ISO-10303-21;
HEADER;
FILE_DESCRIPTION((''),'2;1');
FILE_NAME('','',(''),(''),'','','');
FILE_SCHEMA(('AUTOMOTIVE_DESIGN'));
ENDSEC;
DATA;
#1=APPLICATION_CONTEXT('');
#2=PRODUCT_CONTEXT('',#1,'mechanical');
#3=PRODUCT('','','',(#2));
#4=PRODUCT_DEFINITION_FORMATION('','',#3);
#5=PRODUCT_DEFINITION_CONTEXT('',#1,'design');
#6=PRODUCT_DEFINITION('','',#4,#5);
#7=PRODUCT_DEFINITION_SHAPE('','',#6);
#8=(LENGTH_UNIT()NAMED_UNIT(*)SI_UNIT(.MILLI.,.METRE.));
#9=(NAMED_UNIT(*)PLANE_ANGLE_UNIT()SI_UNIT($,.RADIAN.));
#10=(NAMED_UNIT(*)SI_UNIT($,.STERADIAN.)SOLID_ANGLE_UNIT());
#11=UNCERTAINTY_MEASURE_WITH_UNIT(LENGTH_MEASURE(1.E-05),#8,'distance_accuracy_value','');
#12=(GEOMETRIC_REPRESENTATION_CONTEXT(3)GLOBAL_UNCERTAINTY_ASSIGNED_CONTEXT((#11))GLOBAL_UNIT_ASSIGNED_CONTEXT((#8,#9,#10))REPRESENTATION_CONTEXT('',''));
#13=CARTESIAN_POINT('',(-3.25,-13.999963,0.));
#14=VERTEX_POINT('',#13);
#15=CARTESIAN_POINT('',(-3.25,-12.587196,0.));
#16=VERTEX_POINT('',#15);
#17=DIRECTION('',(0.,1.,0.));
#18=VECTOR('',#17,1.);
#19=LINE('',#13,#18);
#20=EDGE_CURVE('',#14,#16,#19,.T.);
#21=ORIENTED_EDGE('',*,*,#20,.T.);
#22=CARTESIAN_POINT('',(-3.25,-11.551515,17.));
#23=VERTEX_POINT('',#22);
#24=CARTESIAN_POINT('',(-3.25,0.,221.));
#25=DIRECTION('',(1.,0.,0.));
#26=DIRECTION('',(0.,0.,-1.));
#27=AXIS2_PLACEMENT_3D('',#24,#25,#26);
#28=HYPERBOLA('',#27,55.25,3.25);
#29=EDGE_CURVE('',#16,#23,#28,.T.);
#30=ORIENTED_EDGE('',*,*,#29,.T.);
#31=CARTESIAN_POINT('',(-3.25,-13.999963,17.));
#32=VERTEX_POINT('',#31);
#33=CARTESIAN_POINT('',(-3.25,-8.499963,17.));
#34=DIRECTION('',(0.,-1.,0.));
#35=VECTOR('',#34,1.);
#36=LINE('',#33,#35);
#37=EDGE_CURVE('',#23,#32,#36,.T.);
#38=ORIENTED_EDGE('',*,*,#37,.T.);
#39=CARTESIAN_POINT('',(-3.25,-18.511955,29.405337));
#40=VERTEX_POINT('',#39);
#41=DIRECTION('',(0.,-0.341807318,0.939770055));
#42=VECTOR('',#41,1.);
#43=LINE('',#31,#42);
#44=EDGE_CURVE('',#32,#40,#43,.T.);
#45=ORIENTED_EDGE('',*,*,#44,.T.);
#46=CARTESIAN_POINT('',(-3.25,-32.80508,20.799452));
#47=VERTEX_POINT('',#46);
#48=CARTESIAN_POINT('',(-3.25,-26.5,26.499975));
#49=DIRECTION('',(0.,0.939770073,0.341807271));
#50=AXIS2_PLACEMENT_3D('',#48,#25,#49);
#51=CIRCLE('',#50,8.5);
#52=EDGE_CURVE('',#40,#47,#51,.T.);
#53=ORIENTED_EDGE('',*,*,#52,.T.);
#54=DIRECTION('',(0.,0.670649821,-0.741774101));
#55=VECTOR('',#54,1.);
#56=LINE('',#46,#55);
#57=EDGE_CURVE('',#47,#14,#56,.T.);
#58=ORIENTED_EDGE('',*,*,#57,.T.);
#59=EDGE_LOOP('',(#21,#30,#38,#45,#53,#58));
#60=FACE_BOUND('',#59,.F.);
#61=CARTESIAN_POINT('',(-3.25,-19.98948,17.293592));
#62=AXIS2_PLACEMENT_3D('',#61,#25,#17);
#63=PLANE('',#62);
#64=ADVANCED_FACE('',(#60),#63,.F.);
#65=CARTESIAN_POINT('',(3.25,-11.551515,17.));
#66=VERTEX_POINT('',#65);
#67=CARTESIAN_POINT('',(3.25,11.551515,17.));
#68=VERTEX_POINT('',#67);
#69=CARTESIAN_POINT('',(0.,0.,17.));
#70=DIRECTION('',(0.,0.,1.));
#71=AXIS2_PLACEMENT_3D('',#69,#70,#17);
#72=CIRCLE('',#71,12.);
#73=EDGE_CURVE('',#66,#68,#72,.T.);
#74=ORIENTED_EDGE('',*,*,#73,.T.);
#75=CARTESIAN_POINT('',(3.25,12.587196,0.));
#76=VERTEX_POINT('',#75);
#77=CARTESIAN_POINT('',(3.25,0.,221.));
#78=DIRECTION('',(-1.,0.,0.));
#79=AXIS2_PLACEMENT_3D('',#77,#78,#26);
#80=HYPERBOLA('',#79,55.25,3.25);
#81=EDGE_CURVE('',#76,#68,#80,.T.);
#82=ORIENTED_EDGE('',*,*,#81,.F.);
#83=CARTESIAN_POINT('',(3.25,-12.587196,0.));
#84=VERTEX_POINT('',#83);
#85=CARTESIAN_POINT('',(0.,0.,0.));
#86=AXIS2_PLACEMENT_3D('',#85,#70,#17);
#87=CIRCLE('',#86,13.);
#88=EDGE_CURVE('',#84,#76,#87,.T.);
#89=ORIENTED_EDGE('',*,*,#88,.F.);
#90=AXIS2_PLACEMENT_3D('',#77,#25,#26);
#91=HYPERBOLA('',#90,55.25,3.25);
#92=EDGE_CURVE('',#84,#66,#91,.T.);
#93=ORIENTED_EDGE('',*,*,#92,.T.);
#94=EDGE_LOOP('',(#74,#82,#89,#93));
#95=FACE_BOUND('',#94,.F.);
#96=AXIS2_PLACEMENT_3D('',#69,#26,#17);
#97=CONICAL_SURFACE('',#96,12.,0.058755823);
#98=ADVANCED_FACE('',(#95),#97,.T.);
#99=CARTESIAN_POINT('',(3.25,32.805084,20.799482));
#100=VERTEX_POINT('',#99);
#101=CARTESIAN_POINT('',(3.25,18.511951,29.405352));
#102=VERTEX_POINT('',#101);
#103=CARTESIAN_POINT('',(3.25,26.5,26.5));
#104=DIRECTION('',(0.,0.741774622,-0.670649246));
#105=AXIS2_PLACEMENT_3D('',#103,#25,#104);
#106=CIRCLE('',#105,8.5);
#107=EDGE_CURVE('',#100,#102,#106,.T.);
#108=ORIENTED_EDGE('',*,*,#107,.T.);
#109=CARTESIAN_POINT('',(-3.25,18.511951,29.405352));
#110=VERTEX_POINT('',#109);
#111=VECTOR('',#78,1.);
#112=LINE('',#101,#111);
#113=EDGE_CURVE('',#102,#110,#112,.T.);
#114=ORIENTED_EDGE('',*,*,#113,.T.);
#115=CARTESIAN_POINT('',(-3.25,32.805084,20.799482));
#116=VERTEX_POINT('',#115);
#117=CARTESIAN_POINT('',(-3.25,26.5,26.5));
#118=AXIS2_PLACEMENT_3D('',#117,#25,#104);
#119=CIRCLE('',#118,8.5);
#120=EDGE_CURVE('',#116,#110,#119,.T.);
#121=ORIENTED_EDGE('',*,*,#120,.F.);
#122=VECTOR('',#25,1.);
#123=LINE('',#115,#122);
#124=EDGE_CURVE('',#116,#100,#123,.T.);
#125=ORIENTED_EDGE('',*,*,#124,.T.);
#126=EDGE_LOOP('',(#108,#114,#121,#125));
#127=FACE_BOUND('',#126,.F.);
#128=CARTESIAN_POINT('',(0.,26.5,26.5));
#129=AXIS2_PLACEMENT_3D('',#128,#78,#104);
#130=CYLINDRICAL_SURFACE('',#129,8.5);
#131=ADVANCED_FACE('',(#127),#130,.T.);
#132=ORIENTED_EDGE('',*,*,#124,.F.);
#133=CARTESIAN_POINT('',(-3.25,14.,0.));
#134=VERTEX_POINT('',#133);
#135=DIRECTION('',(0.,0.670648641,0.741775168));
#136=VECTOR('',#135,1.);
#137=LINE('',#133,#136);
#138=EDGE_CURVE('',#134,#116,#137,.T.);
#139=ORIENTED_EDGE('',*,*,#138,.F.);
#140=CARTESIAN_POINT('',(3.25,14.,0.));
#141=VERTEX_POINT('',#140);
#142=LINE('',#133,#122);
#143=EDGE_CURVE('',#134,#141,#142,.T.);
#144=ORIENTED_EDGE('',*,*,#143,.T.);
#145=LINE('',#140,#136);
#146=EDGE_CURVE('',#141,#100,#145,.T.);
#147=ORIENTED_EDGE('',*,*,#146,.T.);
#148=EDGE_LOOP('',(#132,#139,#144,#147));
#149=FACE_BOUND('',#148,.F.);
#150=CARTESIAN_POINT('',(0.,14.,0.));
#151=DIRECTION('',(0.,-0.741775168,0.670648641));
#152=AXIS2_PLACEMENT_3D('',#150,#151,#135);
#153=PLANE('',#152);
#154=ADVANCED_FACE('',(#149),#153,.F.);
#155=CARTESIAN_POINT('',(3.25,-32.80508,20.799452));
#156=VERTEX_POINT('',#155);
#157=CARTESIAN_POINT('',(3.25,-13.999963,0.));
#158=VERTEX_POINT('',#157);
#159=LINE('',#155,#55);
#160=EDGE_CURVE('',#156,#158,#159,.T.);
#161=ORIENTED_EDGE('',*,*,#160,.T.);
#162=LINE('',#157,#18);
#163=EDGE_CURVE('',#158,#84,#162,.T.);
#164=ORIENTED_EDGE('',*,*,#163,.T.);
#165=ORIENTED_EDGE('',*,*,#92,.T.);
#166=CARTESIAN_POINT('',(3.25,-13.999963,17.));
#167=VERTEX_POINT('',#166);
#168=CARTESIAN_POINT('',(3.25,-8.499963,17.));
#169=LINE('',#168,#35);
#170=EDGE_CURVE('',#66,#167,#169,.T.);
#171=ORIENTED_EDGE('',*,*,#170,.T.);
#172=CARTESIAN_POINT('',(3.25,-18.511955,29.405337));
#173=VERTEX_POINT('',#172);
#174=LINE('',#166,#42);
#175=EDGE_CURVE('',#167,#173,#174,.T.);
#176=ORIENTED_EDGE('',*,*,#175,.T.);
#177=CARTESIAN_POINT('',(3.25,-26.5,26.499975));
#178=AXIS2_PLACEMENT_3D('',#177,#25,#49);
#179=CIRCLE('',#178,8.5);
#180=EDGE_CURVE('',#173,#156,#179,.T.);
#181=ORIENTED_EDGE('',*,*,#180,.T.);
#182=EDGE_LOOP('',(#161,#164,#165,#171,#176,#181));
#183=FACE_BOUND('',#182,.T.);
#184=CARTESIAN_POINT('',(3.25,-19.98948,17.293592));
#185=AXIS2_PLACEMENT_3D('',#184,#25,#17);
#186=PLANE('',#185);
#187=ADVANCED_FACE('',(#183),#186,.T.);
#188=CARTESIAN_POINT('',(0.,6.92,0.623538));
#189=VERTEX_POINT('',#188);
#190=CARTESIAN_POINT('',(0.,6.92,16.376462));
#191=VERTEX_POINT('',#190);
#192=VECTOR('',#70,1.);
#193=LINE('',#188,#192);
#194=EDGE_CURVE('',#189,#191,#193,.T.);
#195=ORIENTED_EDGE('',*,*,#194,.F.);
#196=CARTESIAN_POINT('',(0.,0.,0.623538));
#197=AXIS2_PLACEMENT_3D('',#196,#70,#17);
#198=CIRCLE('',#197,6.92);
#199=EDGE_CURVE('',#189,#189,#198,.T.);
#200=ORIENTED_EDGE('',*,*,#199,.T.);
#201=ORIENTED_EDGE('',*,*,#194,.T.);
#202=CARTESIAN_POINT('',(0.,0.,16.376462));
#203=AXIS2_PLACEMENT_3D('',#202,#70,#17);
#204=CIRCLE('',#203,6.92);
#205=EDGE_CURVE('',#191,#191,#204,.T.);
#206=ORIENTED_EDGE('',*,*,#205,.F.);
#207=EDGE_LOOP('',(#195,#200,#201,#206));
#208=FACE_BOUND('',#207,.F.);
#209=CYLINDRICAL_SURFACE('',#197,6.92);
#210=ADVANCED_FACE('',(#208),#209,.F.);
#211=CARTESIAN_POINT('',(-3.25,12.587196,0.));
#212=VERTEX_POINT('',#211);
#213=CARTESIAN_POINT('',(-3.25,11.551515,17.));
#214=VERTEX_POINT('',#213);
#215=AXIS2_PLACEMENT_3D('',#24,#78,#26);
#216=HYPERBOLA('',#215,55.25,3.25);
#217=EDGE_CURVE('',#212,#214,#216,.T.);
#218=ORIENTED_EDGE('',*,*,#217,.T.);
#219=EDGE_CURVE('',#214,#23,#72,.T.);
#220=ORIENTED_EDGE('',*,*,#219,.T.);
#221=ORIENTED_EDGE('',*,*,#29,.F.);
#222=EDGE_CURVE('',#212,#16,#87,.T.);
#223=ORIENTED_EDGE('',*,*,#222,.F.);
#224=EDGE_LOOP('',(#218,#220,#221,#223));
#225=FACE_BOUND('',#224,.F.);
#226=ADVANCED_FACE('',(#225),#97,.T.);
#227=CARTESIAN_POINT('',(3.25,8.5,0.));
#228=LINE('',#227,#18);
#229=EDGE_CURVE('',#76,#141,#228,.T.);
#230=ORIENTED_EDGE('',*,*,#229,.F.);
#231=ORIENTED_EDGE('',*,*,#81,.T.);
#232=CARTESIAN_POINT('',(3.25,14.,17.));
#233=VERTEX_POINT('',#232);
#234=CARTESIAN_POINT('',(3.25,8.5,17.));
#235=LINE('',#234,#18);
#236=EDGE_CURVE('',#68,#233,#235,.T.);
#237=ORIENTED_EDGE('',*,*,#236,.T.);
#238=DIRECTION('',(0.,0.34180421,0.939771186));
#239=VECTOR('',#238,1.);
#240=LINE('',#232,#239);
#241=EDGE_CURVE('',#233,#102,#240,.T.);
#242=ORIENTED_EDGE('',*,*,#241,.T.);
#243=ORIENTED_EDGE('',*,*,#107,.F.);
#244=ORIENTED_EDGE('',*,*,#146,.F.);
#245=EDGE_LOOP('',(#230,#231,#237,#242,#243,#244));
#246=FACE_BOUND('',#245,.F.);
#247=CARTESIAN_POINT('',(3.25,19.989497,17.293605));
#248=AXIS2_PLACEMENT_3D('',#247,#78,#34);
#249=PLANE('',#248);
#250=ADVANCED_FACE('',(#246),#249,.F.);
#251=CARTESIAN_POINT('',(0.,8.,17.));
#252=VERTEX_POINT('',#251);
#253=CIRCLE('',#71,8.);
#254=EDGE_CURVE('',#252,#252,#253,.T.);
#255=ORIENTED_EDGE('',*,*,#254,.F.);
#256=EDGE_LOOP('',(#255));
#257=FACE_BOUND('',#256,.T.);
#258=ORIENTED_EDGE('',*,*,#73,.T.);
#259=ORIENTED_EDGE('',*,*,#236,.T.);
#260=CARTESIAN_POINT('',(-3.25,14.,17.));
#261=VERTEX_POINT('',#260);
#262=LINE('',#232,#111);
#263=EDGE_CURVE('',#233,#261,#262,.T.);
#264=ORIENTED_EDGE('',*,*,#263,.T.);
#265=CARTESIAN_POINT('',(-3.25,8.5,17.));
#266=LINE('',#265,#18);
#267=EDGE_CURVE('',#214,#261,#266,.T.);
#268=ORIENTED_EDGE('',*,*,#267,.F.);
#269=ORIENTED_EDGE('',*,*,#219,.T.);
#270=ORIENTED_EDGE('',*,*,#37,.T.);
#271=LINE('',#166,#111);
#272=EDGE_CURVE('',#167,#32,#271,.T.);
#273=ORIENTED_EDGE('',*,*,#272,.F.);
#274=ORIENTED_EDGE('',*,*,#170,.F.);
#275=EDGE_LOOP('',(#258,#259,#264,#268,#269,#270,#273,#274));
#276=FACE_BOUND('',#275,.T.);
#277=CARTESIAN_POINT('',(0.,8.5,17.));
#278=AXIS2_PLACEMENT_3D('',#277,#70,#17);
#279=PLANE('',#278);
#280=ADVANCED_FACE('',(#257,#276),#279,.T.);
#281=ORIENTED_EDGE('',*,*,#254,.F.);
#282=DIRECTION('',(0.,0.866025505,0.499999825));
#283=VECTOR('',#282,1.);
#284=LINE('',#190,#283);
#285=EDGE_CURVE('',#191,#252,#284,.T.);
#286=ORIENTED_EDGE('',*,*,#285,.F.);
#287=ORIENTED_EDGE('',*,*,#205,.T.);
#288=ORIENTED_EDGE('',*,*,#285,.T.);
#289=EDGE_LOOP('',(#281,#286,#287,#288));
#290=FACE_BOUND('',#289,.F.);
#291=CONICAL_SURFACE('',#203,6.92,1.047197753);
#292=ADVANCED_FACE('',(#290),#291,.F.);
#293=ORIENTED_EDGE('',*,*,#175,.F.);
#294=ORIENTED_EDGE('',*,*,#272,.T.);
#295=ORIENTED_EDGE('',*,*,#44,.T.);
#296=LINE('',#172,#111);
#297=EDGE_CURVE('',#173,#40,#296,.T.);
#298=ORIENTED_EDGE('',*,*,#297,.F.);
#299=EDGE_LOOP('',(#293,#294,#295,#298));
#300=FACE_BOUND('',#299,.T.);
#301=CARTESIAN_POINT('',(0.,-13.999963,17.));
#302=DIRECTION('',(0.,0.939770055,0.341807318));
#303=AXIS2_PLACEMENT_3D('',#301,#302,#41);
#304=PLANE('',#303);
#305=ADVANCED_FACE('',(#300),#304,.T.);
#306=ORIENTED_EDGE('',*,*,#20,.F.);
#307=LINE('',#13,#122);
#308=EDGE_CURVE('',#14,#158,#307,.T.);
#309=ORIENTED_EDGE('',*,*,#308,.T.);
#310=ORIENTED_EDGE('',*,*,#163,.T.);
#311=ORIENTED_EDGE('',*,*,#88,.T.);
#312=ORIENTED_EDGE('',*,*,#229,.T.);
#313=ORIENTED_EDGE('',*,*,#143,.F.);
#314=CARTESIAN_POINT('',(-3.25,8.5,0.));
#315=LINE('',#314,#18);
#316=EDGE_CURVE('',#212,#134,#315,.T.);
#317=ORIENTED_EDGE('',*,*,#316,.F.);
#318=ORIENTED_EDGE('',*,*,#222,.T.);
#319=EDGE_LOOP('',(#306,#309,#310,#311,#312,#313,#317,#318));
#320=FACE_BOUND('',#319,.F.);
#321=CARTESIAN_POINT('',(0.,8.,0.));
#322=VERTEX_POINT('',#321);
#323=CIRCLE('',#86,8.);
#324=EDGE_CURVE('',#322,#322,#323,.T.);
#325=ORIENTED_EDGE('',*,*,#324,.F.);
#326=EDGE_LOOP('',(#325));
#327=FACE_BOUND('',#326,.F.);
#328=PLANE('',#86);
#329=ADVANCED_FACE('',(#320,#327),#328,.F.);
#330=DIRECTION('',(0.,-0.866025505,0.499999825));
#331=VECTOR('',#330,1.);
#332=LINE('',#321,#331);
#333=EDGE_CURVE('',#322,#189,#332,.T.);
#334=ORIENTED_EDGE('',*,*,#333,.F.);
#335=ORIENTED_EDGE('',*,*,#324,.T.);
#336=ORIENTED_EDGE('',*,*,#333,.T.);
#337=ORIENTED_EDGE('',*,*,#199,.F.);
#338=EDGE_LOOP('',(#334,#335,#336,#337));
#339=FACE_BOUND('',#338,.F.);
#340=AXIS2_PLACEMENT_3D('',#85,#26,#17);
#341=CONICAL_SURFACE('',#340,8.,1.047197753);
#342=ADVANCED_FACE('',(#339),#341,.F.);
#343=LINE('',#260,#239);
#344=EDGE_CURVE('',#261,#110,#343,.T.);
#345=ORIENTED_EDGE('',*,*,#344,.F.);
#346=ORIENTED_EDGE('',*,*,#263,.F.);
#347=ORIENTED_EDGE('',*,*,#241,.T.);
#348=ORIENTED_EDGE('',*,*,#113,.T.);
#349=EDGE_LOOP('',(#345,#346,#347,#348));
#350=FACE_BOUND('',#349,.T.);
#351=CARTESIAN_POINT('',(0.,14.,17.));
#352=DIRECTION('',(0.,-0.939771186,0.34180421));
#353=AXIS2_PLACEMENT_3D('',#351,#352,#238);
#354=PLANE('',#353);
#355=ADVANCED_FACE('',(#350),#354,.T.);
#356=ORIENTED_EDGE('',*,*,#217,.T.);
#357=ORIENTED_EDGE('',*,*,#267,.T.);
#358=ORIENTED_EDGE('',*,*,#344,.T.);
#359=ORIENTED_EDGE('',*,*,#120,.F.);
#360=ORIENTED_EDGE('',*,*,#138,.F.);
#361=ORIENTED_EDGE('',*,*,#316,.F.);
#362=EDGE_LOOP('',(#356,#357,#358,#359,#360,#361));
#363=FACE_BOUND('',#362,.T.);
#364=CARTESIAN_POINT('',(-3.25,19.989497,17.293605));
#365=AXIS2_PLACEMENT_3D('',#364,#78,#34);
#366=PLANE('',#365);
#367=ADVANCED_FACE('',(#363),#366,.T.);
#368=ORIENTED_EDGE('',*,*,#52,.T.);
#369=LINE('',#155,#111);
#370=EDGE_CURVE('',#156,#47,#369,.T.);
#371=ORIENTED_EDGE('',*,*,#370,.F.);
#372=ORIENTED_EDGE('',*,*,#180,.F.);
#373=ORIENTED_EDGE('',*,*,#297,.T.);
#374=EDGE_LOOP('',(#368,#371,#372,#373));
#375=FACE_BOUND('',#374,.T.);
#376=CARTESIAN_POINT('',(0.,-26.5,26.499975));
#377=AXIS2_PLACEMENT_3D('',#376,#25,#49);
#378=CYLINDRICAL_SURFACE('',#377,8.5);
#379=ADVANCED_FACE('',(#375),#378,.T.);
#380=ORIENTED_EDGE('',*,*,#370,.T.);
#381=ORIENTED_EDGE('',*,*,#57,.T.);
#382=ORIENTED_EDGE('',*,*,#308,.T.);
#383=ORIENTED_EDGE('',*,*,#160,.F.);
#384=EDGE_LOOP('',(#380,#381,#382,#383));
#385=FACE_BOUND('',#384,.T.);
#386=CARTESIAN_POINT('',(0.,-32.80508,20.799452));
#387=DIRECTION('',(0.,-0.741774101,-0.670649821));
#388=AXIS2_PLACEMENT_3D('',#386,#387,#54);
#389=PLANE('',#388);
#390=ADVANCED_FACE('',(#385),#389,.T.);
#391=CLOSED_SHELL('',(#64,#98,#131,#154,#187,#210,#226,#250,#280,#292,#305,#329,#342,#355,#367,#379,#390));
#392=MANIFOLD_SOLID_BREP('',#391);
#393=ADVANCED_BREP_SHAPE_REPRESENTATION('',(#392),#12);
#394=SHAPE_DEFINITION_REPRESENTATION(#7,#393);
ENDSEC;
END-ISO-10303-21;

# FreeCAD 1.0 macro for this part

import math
import FreeCAD as App
import Part
import Sketcher
from FreeCAD import Vector
Q = App.Units.Quantity


def add_polygon(sketch, points):
    """Adds a closed chain of lines whose ends are joined by coincident constraints."""
    first, n = sketch.GeometryCount, len(points)
    for a, b in zip(points, points[1:] + points[:1]):
        sketch.addGeometry(Part.LineSegment(App.Vector(*a, 0), App.Vector(*b, 0)), False)
    for i in range(n):
        sketch.addConstraint(Sketcher.Constraint("Coincident", first + i, 2, first + (i + 1) % n, 1))

doc = App.newDocument("Part")
body = doc.addObject("PartDesign::Body", "Body")
body.AllowCompound = True

# Sketch on YZ plane
sketch1 = body.newObject("Sketcher::SketchObject", "Sketch")
sketch1.AttachmentSupport = (doc.getObject("YZ_Plane"), [""])
sketch1.MapMode = "FlatFace"
sketch1.addGeometry(Part.LineSegment(Vector(8.5, 17, 0), Vector(8.5, 0, 0)), False)
sketch1.addGeometry(Part.LineSegment(Vector(8.5, 0, 0), Vector(14, 0, 0)), False)
sketch1.addGeometry(Part.LineSegment(Vector(14, 0, 0), Vector(32.805084, 20.799482, 0)), False)
sketch1.addGeometry(Part.ArcOfCircle(Part.Circle(Vector(26.5, 26.5, 0), Vector(0, 0, 1), 8.5), math.radians(-42.117194), math.radians(160.013051)), False)
sketch1.addGeometry(Part.LineSegment(Vector(18.511951, 29.405352, 0), Vector(14, 17, 0)), False)
sketch1.addGeometry(Part.LineSegment(Vector(14, 17, 0), Vector(8.5, 17, 0)), False)
sketch1.addGeometry(Part.LineSegment(Vector(-32.80508, 20.799452, 0), Vector(-13.999963, 0, 0)), False)
sketch1.addGeometry(Part.LineSegment(Vector(-13.999963, 0, 0), Vector(-8.499963, 0, 0)), False)
sketch1.addGeometry(Part.LineSegment(Vector(-8.499963, 0, 0), Vector(-8.499963, 17, 0)), False)
sketch1.addGeometry(Part.LineSegment(Vector(-8.499963, 17, 0), Vector(-13.999963, 17, 0)), False)
sketch1.addGeometry(Part.LineSegment(Vector(-13.999963, 17, 0), Vector(-18.511955, 29.405337, 0)), False)
sketch1.addGeometry(Part.ArcOfCircle(Part.Circle(Vector(-26.5, 26.499975, 0), Vector(0, 0, 1), 8.5), math.radians(19.987021), math.radians(222.117238)), False)
sketch1.addConstraint(Sketcher.Constraint("Coincident", 0, 2, 1, 1))
sketch1.addConstraint(Sketcher.Constraint("Coincident", 1, 2, 2, 1))
sketch1.addConstraint(Sketcher.Constraint("Coincident", 2, 2, 3, 1))
sketch1.addConstraint(Sketcher.Constraint("Coincident", 3, 2, 4, 1))
sketch1.addConstraint(Sketcher.Constraint("Coincident", 4, 2, 5, 1))
sketch1.addConstraint(Sketcher.Constraint("Coincident", 5, 2, 0, 1))
sketch1.addConstraint(Sketcher.Constraint("Coincident", 6, 2, 7, 1))
sketch1.addConstraint(Sketcher.Constraint("Coincident", 7, 2, 8, 1))
sketch1.addConstraint(Sketcher.Constraint("Coincident", 8, 2, 9, 1))
sketch1.addConstraint(Sketcher.Constraint("Coincident", 9, 2, 10, 1))
sketch1.addConstraint(Sketcher.Constraint("Coincident", 10, 2, 11, 1))
sketch1.addConstraint(Sketcher.Constraint("Coincident", 11, 2, 6, 1))
sketch1.addConstraint(Sketcher.Constraint("Vertical", 0))
sketch1.addConstraint(Sketcher.Constraint("Horizontal", 1))
sketch1.addConstraint(Sketcher.Constraint("Horizontal", 5))
sketch1.addConstraint(Sketcher.Constraint("Horizontal", 7))
sketch1.addConstraint(Sketcher.Constraint("Vertical", 8))
sketch1.addConstraint(Sketcher.Constraint("Horizontal", 9))
sketch1.addConstraint(Sketcher.Constraint("PointOnObject", 0, 2, -1))
sketch1.addConstraint(Sketcher.Constraint("PointOnObject", 6, 2, -1))
sketch1.addConstraint(Sketcher.Constraint("Radius", 3, 8.5))
sketch1.addConstraint(Sketcher.Constraint("Radius", 11, 8.5))
sketch1.addConstraint(Sketcher.Constraint("DistanceY", 0, 2, 0, 1, 17.0))
sketch1.addConstraint(Sketcher.Constraint("DistanceY", 8, 1, 8, 2, 17.0))
sketch1.addConstraint(Sketcher.Constraint("DistanceX", 1, 1, 1, 2, 5.5))
sketch1.addConstraint(Sketcher.Constraint("DistanceX", 5, 2, 5, 1, 5.5))
sketch1.addConstraint(Sketcher.Constraint("DistanceX", 7, 1, 7, 2, 5.5))
sketch1.addConstraint(Sketcher.Constraint("DistanceX", 9, 2, 9, 1, 5.5))
sketch1.addConstraint(Sketcher.Constraint("DistanceX", -1, 1, 1, 2, 14.0))
sketch1.addConstraint(Sketcher.Constraint("DistanceX", 11, 3, 3, 3, 53.0))
sketch1.addConstraint(Sketcher.Constraint("DistanceX", 0, 2, 3, 3, 18.0))
sketch1.addConstraint(Sketcher.Constraint("DistanceY", -1, 1, 3, 3, 26.5))
sketch1.addConstraint(Sketcher.Constraint("DistanceX", -1, 1, 3, 2, 18.511951))
sketch1.addConstraint(Sketcher.Constraint("DistanceX", 11, 2, -1, 1, 32.80508))
sketch1.addConstraint(Sketcher.Constraint("DistanceY", 2, 2, 3, 3, 5.700518))
sketch1.addConstraint(Sketcher.Constraint("DistanceY", 11, 3, 10, 2, 2.905362))
sketch1.addConstraint(Sketcher.Constraint("Distance", 6, 28.040143))
sketch1.addConstraint(Sketcher.Constraint("Distance", 10, 13.200396))
pad1 = body.newObject("PartDesign::Pad", "Pad")
pad1.Profile = sketch1
pad1.Length = 6.5
pad1.Midplane = True
body2 = doc.addObject("PartDesign::Body", "Body001")

# Sketch on YZ plane
sketch2 = body2.newObject("Sketcher::SketchObject", "Sketch001")
sketch2.AttachmentSupport = (doc.getObject("YZ_Plane001"), [""])
sketch2.MapMode = "FlatFace"
add_polygon(sketch2, [(6.92, 0.623538), (8, 0), (13, 0), (12, 17), (8, 17), (6.92, 16.376462)])  # lines 0-5
sketch2.addConstraint(Sketcher.Constraint("Horizontal", 1))
sketch2.addConstraint(Sketcher.Constraint("Horizontal", 3))
sketch2.addConstraint(Sketcher.Constraint("Vertical", 5))
sketch2.addConstraint(Sketcher.Constraint("PointOnObject", 0, 2, -1))
sketch2.addConstraint(Sketcher.Constraint("Vertical", 0, 2, 3, 2))
sketch2.addConstraint(Sketcher.Constraint("Equal", 0, 4))
sketch2.addConstraint(Sketcher.Constraint("DistanceX", 1, 1, 1, 2, 5.0))
sketch2.addConstraint(Sketcher.Constraint("DistanceX", 3, 2, 3, 1, 4.0))
sketch2.addConstraint(Sketcher.Constraint("Angle", 0, Q("-29.999988 deg")))
sketch2.addConstraint(Sketcher.Constraint("DistanceX", -1, 1, 0, 2, 8.0))
sketch2.addConstraint(Sketcher.Constraint("DistanceY", -1, 1, 2, 2, 17.0))
sketch2.addConstraint(Sketcher.Constraint("DistanceX", -1, 1, 4, 2, 6.92))
revolution = body2.newObject("PartDesign::Revolution", "Revolution")
revolution.Profile = sketch2
revolution.ReferenceAxis = (sketch2, ["V_Axis"])
revolution.Angle = 360
doc.recompute()

boolean = body2.newObject("PartDesign::Boolean", "Boolean")
boolean.Type = "Fuse"
boolean.addObjects([body])

doc.recompute()
